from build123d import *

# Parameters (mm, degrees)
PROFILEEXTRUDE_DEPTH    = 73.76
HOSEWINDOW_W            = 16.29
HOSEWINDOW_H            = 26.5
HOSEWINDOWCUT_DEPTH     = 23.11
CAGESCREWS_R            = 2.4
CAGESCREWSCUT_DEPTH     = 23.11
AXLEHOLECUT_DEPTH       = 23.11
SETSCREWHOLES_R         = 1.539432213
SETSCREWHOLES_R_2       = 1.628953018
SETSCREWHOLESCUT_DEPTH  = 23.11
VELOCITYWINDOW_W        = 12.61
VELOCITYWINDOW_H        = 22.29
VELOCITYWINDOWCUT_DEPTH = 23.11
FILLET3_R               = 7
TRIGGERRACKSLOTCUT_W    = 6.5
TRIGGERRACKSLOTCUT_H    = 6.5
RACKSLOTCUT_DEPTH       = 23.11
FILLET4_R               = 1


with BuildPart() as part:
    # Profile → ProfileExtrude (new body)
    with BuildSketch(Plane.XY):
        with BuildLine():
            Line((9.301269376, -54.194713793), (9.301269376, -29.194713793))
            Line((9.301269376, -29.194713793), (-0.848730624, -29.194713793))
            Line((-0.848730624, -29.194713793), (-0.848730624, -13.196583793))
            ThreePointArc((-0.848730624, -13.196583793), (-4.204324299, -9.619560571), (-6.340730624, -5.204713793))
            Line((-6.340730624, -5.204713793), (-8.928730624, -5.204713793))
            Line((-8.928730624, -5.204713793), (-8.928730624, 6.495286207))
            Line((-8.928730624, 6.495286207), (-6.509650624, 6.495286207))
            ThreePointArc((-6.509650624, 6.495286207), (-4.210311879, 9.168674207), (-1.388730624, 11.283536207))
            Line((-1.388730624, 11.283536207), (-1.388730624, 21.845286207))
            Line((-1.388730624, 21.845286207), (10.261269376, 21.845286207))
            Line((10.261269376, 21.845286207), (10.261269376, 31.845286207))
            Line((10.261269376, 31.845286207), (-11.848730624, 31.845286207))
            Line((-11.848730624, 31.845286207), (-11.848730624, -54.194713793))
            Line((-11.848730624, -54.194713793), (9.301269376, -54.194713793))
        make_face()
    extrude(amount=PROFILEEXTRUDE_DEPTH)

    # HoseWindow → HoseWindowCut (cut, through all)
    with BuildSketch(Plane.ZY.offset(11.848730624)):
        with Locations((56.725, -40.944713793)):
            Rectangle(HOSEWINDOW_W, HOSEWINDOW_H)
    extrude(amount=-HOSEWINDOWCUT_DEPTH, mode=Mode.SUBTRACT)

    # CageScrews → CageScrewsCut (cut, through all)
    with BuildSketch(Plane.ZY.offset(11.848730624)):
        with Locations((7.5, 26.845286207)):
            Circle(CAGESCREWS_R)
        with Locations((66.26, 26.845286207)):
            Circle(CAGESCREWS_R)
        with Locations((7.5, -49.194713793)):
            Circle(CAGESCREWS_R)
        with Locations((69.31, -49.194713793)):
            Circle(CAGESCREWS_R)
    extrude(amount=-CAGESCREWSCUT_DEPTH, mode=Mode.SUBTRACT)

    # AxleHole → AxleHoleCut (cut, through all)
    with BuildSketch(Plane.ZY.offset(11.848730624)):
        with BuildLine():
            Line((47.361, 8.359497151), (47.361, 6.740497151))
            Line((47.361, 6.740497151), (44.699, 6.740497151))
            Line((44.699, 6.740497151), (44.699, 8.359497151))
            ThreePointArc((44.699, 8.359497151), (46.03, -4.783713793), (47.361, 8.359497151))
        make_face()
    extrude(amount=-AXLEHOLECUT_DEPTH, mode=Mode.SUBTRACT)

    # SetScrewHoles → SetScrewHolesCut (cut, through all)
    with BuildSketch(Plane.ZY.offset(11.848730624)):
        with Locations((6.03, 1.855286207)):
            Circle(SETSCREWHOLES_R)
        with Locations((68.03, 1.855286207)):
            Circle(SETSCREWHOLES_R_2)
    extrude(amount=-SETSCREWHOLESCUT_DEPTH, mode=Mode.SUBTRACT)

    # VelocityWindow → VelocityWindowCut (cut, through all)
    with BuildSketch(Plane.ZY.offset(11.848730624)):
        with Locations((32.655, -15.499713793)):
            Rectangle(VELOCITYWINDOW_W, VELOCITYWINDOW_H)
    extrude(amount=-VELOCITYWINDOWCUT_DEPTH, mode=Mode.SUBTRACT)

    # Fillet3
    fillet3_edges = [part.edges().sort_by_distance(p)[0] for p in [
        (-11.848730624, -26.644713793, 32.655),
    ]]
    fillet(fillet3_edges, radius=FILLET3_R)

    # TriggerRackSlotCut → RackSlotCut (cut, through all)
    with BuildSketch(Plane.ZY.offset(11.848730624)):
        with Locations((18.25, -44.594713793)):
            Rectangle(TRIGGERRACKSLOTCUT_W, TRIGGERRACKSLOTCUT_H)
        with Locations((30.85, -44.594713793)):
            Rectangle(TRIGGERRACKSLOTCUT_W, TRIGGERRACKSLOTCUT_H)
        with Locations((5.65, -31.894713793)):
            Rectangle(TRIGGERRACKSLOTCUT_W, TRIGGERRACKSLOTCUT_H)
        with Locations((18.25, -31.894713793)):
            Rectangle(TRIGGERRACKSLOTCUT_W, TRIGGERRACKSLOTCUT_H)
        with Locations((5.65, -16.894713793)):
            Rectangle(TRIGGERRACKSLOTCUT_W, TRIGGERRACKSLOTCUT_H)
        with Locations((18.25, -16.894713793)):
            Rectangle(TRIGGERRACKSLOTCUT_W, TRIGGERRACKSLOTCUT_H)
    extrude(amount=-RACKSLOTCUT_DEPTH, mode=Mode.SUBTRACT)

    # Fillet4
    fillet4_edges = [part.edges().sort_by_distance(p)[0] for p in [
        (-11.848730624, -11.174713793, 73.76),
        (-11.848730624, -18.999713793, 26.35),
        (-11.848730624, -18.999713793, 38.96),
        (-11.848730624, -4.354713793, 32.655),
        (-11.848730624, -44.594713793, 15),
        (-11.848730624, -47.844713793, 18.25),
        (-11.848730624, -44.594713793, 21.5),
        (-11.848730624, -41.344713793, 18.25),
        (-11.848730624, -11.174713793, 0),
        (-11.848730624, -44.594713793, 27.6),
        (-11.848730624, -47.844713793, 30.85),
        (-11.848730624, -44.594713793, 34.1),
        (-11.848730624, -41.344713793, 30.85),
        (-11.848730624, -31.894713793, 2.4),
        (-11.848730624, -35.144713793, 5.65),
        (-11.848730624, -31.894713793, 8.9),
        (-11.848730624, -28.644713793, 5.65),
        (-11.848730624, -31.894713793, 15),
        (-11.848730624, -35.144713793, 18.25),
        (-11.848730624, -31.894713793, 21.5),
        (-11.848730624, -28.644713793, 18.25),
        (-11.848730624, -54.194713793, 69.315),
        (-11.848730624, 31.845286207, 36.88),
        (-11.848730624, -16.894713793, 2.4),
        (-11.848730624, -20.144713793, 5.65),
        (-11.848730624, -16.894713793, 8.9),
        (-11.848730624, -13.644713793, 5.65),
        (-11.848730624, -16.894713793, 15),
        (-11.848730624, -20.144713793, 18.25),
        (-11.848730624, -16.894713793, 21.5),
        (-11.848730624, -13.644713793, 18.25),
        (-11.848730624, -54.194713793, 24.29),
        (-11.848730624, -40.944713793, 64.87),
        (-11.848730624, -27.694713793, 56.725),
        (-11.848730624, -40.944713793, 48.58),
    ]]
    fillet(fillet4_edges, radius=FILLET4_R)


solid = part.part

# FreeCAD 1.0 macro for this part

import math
import FreeCAD as App
import Part
import Sketcher

V = App.Vector


def edges_at(feature, points):
    """Names of the edges that pass closest to the given points."""
    edges = feature.Shape.Edges
    near = lambda p: min(range(len(edges)), key=lambda i: edges[i].distToShape(Part.Vertex(*p))[0])
    return sorted({f"Edge{near(p) + 1}" for p in points})


def add_polygon(sketch, points):
    """Adds a closed chain of lines whose ends are joined by coincident constraints."""
    first, n = sketch.GeometryCount, len(points)
    for a, b in zip(points, points[1:] + points[:1]):
        sketch.addGeometry(Part.LineSegment(App.Vector(*a, 0), App.Vector(*b, 0)), False)
    for i in range(n):
        sketch.addConstraint(Sketcher.Constraint("Coincident", first + i, 2, first + (i + 1) % n, 1))

doc = App.newDocument("Part")
params = doc.addObject("Spreadsheet::Sheet", "Params")
for row, (alias, value) in enumerate([
    ("sketch1_height", "25 mm"),
    ("sketch1_height2", "10 mm"),
    ("sketch1_height3", "11.7 mm"),
    ("sketch1_width", "10.15 mm"),
    ("sketch1_width2", "11.65 mm"),
    ("pad1_length", "73.76 mm"),
    ("sketch2_width", "26.5 mm"),
    ("sketch2_height", "16.29 mm"),
    ("sketch3_diameter", "4.8 mm"),
    ("sketch6_width", "22.29 mm"),
    ("sketch6_height", "12.61 mm"),
    ("fillet_radius", "7 mm"),
    ("sketch7_width", "6.5 mm"),
    ("fillet2_radius", "1 mm"),
], start=1):
    params.set(f"A{row}", alias)
    params.set(f"B{row}", "=" + value)
    params.setAlias(f"B{row}", alias)

body = doc.addObject("PartDesign::Body", "Body")

# Sketch on XY plane
sketch1 = doc.addObject("Sketcher::SketchObject", "Sketch")
body.addObject(sketch1)
sketch1.AttachmentSupport = (doc.XY_Plane, [""])
sketch1.MapMode = "FlatFace"
sketch1.addGeometry([
    Part.LineSegment(V(9.3, -54.2, 0), V(9.3, -29.2, 0)),  # 0
    Part.LineSegment(V(9.3, -29.2, 0), V(-0.8, -29.2, 0)),  # 1
    Part.LineSegment(V(-0.8, -29.2, 0), V(-0.8, -13.2, 0)),  # 2
    Part.ArcOfCircle(Part.Circle(V(9.2, -0.4, 0), V(0, 0, 1), 16.3), math.radians(-163), math.radians(-128)),  # 3
    Part.LineSegment(V(-6.3, -5.2, 0), V(-8.9, -5.2, 0)),  # 4
    Part.LineSegment(V(-8.9, -5.2, 0), V(-8.9, 6.5, 0)),  # 5
    Part.LineSegment(V(-8.9, 6.5, 0), V(-6.5, 6.5, 0)),  # 6
    Part.ArcOfCircle(Part.Circle(V(6.9, -2.7, 0), V(0, 0, 1), 16.3), math.radians(121), math.radians(146)),  # 7
    Part.LineSegment(V(-1.4, 11.3, 0), V(-1.4, 21.8, 0)),  # 8
    Part.LineSegment(V(-1.4, 21.8, 0), V(10.3, 21.8, 0)),  # 9
    Part.LineSegment(V(10.3, 21.8, 0), V(10.3, 31.8, 0)),  # 10
    Part.LineSegment(V(10.3, 31.8, 0), V(-11.8, 31.8, 0)),  # 11
    Part.LineSegment(V(-11.8, 31.8, 0), V(-11.8, -54.2, 0)),  # 12
    Part.LineSegment(V(-11.8, -54.2, 0), V(9.3, -54.2, 0)),  # 13
], False)
sketch1.addConstraint([
    Sketcher.Constraint("Coincident", 0, 2, 1, 1),
    Sketcher.Constraint("Coincident", 1, 2, 2, 1),
    Sketcher.Constraint("Coincident", 2, 2, 3, 2),
    Sketcher.Constraint("Coincident", 3, 1, 4, 1),
    Sketcher.Constraint("Coincident", 4, 2, 5, 1),
    Sketcher.Constraint("Coincident", 5, 2, 6, 1),
    Sketcher.Constraint("Coincident", 6, 2, 7, 2),
    Sketcher.Constraint("Coincident", 7, 1, 8, 1),
    Sketcher.Constraint("Coincident", 8, 2, 9, 1),
    Sketcher.Constraint("Coincident", 9, 2, 10, 1),
    Sketcher.Constraint("Coincident", 10, 2, 11, 1),
    Sketcher.Constraint("Coincident", 11, 2, 12, 1),
    Sketcher.Constraint("Coincident", 12, 2, 13, 1),
    Sketcher.Constraint("Coincident", 13, 2, 0, 1),
    Sketcher.Constraint("Vertical", 0),
    Sketcher.Constraint("Horizontal", 1),
    Sketcher.Constraint("Vertical", 2),
    Sketcher.Constraint("Horizontal", 4),
    Sketcher.Constraint("Vertical", 5),
    Sketcher.Constraint("Horizontal", 6),
    Sketcher.Constraint("Vertical", 8),
    Sketcher.Constraint("Horizontal", 9),
    Sketcher.Constraint("Vertical", 10),
    Sketcher.Constraint("Horizontal", 11),
    Sketcher.Constraint("Vertical", 12),
    Sketcher.Constraint("Horizontal", 13),
    Sketcher.Constraint("Equal", 3, 7),
    Sketcher.Constraint("DistanceY", 0, 1, 0, 2, 25.0),
    Sketcher.Constraint("DistanceY", 10, 1, 10, 2, 10.0),
    Sketcher.Constraint("DistanceY", 5, 1, 5, 2, 11.7),
    Sketcher.Constraint("Radius", 3, 16.261),
    Sketcher.Constraint("DistanceX", 12, 2, 1, 2, 11.0),
    Sketcher.Constraint("DistanceX", 1, 2, 1, 1, 10.15),
    Sketcher.Constraint("DistanceX", 9, 1, 9, 2, 11.65),
    Sketcher.Constraint("DistanceX", 11, 2, 11, 1, 22.11),
    Sketcher.Constraint("DistanceY", 12, 2, 12, 1, 86.04),
    Sketcher.Constraint("DistanceX", 4, 2, 4, 1, 2.588),
    Sketcher.Constraint("DistanceY", 1, 2, 3, 1, 23.99),
    Sketcher.Constraint("DistanceX", 4, 2, 2, 2, 8.08),
    Sketcher.Constraint("DistanceX", 6, 1, 6, 2, 2.41908),
    Sketcher.Constraint("DistanceY", 2, 1, 2, 2, 15.99813),
    Sketcher.Constraint("DistanceY", 8, 1, 8, 2, 10.56175),
    Sketcher.Constraint("DistanceX", -1, 1, 3, 3, 9.197308),
    Sketcher.Constraint("DistanceY", 3, 3, -1, 1, 0.409981),
])
sketch1.setExpression("Constraints[27]", "Params.sketch1_height")
sketch1.setExpression("Constraints[28]", "Params.sketch1_height2")
sketch1.setExpression("Constraints[29]", "Params.sketch1_height3")
sketch1.setExpression("Constraints[32]", "Params.sketch1_width")
sketch1.setExpression("Constraints[33]", "Params.sketch1_width2")
pad1 = doc.addObject("PartDesign::Pad", "Pad")
body.addObject(pad1)
pad1.Profile = sketch1
pad1.setExpression("Length", "Params.pad1_length")

# Sketch on YZ plane
sketch2 = doc.addObject("Sketcher::SketchObject", "Sketch001")
body.addObject(sketch2)
sketch2.AttachmentSupport = (doc.YZ_Plane, [""])
sketch2.MapMode = "FlatFace"
sketch2.AttachmentOffset = App.Placement(V(0, 0, -11.848731), App.Rotation())
add_polygon(sketch2, [(-28, 49), (-54, 49), (-54, 65), (-28, 65)])  # lines 0-3
sketch2.addConstraint([
    Sketcher.Constraint("Horizontal", 0),
    Sketcher.Constraint("Vertical", 1),
    Sketcher.Constraint("Horizontal", 2),
    Sketcher.Constraint("Vertical", 3),
    Sketcher.Constraint("DistanceX", 0, 2, 0, 1, 26.5),
    Sketcher.Constraint("DistanceY", 1, 1, 1, 2, 16.29),
    Sketcher.Constraint("DistanceY", -1, 1, 0, 2, 48.58),
    Sketcher.Constraint("DistanceX", 0, 2, -1, 1, 54.194714),
])
sketch2.setExpression("Constraints[8]", "Params.sketch2_width")
sketch2.setExpression("Constraints[9]", "Params.sketch2_height")
pocket1 = doc.addObject("PartDesign::Pocket", "Pocket")
body.addObject(pocket1)
pocket1.Profile = sketch2
pocket1.Type = "ThroughAll"
pocket1.Reversed = True

# Sketch on YZ plane
sketch3 = doc.addObject("Sketcher::SketchObject", "Sketch002")
body.addObject(sketch3)
sketch3.AttachmentSupport = (doc.YZ_Plane, [""])
sketch3.MapMode = "FlatFace"
sketch3.AttachmentOffset = App.Placement(V(0, 0, -11.848731), App.Rotation())
sketch3.addGeometry([
    Part.Circle(V(26.8, 7.5, 0), V(0, 0, 1), 2.4),
    Part.Circle(V(26.8, 66.3, 0), V(0, 0, 1), 2.4),
    Part.Circle(V(-49.2, 7.5, 0), V(0, 0, 1), 2.4),
    Part.Circle(V(-49.2, 69.3, 0), V(0, 0, 1), 2.4),
], False)
sketch3.addConstraint([
    Sketcher.Constraint("Equal", 0, 1),
    Sketcher.Constraint("Equal", 1, 2),
    Sketcher.Constraint("Equal", 2, 3),
    Sketcher.Constraint("Horizontal", 0, 3, 2, 3),
    Sketcher.Constraint("Vertical", 0, 3, 1, 3),
    Sketcher.Constraint("Vertical", 2, 3, 3, 3),
    Sketcher.Constraint("Diameter", 0, 4.8),
    Sketcher.Constraint("DistanceY", -1, 1, 0, 3, 7.5),
    Sketcher.Constraint("DistanceY", -1, 1, 1, 3, 66.26),
    Sketcher.Constraint("DistanceY", -1, 1, 3, 3, 69.31),
    Sketcher.Constraint("DistanceX", 2, 3, 0, 3, 76.04),
    Sketcher.Constraint("DistanceX", -1, 1, 0, 3, 26.845286),
])
sketch3.setExpression("Constraints[6]", "Params.sketch3_diameter")
pocket2 = doc.addObject("PartDesign::Pocket", "Pocket001")
body.addObject(pocket2)
pocket2.Profile = sketch3
pocket2.Type = "ThroughAll"
pocket2.Reversed = True

# Sketch on YZ plane
sketch4 = doc.addObject("Sketcher::SketchObject", "Sketch003")
body.addObject(sketch4)
sketch4.AttachmentSupport = (doc.YZ_Plane, [""])
sketch4.MapMode = "FlatFace"
sketch4.AttachmentOffset = App.Placement(V(0, 0, -11.848731), App.Rotation())
sketch4.addGeometry([
    Part.LineSegment(V(8.4, 47.4, 0), V(6.7, 47.4, 0)),
    Part.LineSegment(V(6.7, 47.4, 0), V(6.7, 44.7, 0)),
    Part.LineSegment(V(6.7, 44.7, 0), V(8.4, 44.7, 0)),
    Part.ArcOfCircle(Part.Circle(V(1.9, 46, 0), V(0, 0, 1), 6.6), math.radians(12), math.radians(348)),
], False)
sketch4.addConstraint([
    Sketcher.Constraint("Coincident", 0, 2, 1, 1),
    Sketcher.Constraint("Coincident", 1, 2, 2, 1),
    Sketcher.Constraint("Coincident", 2, 2, 3, 2),
    Sketcher.Constraint("Coincident", 3, 1, 0, 1),
    Sketcher.Constraint("Horizontal", 0),
    Sketcher.Constraint("Vertical", 1),
    Sketcher.Constraint("Horizontal", 2),
    Sketcher.Constraint("Vertical", 2, 2, 3, 1),
    Sketcher.Constraint("Radius", 3, 6.639),
    Sketcher.Constraint("DistanceX", 0, 2, 0, 1, 1.619),
    Sketcher.Constraint("DistanceY", 1, 2, 1, 1, 2.662),
    Sketcher.Constraint("DistanceY", -1, 1, 3, 3, 46.03),
    Sketcher.Constraint("DistanceX", -1, 1, 3, 3, 1.855286),
])
pocket3 = doc.addObject("PartDesign::Pocket", "Pocket002")
body.addObject(pocket3)
pocket3.Profile = sketch4
pocket3.Type = "ThroughAll"
pocket3.Reversed = True

# Sketch on YZ plane
sketch5 = doc.addObject("Sketcher::SketchObject", "Sketch004")
body.addObject(sketch5)
sketch5.AttachmentSupport = (doc.YZ_Plane, [""])
sketch5.MapMode = "FlatFace"
sketch5.AttachmentOffset = App.Placement(V(0, 0, -11.848731), App.Rotation())
sketch5.addGeometry([
    Part.Circle(V(1.9, 6, 0), V(0, 0, 1), 1.5),
    Part.Circle(V(1.9, 68, 0), V(0, 0, 1), 1.6),
], False)
sketch5.addConstraint([
    Sketcher.Constraint("Vertical", 0, 3, 1, 3),
    Sketcher.Constraint("DistanceY", 0, 3, 1, 3, 62.0),
    Sketcher.Constraint("DistanceY", -1, 1, 0, 3, 6.03),
    Sketcher.Constraint("Diameter", 0, 3.078864),
    Sketcher.Constraint("Diameter", 1, 3.257906),
    Sketcher.Constraint("DistanceX", -1, 1, 0, 3, 1.855286),
])
pocket4 = doc.addObject("PartDesign::Pocket", "Pocket003")
body.addObject(pocket4)
pocket4.Profile = sketch5
pocket4.Type = "ThroughAll"
pocket4.Reversed = True

# Sketch on YZ plane
sketch6 = doc.addObject("Sketcher::SketchObject", "Sketch005")
body.addObject(sketch6)
sketch6.AttachmentSupport = (doc.YZ_Plane, [""])
sketch6.MapMode = "FlatFace"
sketch6.AttachmentOffset = App.Placement(V(0, 0, -11.848731), App.Rotation())
add_polygon(sketch6, [(-4, 26), (-27, 26), (-27, 39), (-4, 39)])  # lines 0-3
sketch6.addConstraint([
    Sketcher.Constraint("Horizontal", 0),
    Sketcher.Constraint("Vertical", 1),
    Sketcher.Constraint("Horizontal", 2),
    Sketcher.Constraint("Vertical", 3),
    Sketcher.Constraint("DistanceX", 0, 2, 0, 1, 22.29),
    Sketcher.Constraint("DistanceY", 1, 1, 1, 2, 12.61),
    Sketcher.Constraint("DistanceY", -1, 1, 0, 2, 26.35),
    Sketcher.Constraint("DistanceX", 0, 2, -1, 1, 26.644714),
])
sketch6.setExpression("Constraints[8]", "Params.sketch6_width")
sketch6.setExpression("Constraints[9]", "Params.sketch6_height")
pocket5 = doc.addObject("PartDesign::Pocket", "Pocket004")
body.addObject(pocket5)
pocket5.Profile = sketch6
pocket5.Type = "ThroughAll"
pocket5.Reversed = True
doc.recompute()

fillet = doc.addObject("PartDesign::Fillet", "Fillet")
body.addObject(fillet)
fillet.Base = (pocket5, edges_at(pocket5, [(-11.849, -26.645, 32.655)]))
fillet.setExpression("Radius", "Params.fillet_radius")

# Sketch on YZ plane
sketch7 = doc.addObject("Sketcher::SketchObject", "Sketch006")
body.addObject(sketch7)
sketch7.AttachmentSupport = (doc.YZ_Plane, [""])
sketch7.MapMode = "FlatFace"
sketch7.AttachmentOffset = App.Placement(V(0, 0, -11.848731), App.Rotation())
add_polygon(sketch7, [(-41, 15), (-48, 15), (-48, 22), (-41, 22)])  # lines 0-3
add_polygon(sketch7, [(-41, 28), (-48, 28), (-48, 34), (-41, 34)])  # lines 4-7
add_polygon(sketch7, [(-29, 2), (-35, 2), (-35, 9), (-29, 9)])  # lines 8-11
add_polygon(sketch7, [(-29, 15), (-35, 15), (-35, 22), (-29, 22)])  # lines 12-15
add_polygon(sketch7, [(-14, 2), (-20, 2), (-20, 9), (-14, 9)])  # lines 16-19
add_polygon(sketch7, [(-14, 15), (-20, 15), (-20, 22), (-14, 22)])  # lines 20-23
sketch7.addConstraint([
    Sketcher.Constraint("Horizontal", 0),
    Sketcher.Constraint("Vertical", 1),
    Sketcher.Constraint("Horizontal", 2),
    Sketcher.Constraint("Vertical", 3),
    Sketcher.Constraint("Horizontal", 4),
    Sketcher.Constraint("Vertical", 5),
    Sketcher.Constraint("Horizontal", 6),
    Sketcher.Constraint("Vertical", 7),
    Sketcher.Constraint("Horizontal", 8),
    Sketcher.Constraint("Vertical", 9),
    Sketcher.Constraint("Horizontal", 10),
    Sketcher.Constraint("Vertical", 11),
    Sketcher.Constraint("Horizontal", 12),
    Sketcher.Constraint("Vertical", 13),
    Sketcher.Constraint("Horizontal", 14),
    Sketcher.Constraint("Vertical", 15),
    Sketcher.Constraint("Horizontal", 16),
    Sketcher.Constraint("Vertical", 17),
    Sketcher.Constraint("Horizontal", 18),
    Sketcher.Constraint("Vertical", 19),
    Sketcher.Constraint("Horizontal", 20),
    Sketcher.Constraint("Vertical", 21),
    Sketcher.Constraint("Horizontal", 22),
    Sketcher.Constraint("Vertical", 23),
    Sketcher.Constraint("Horizontal", 3, 2, 12, 2),
    Sketcher.Constraint("Horizontal", 2, 2, 13, 2),
    Sketcher.Constraint("Horizontal", 11, 2, 16, 2),
    Sketcher.Constraint("Horizontal", 10, 2, 17, 2),
    Sketcher.Constraint("Horizontal", 15, 2, 20, 2),
    Sketcher.Constraint("Horizontal", 14, 2, 21, 2),
    Sketcher.Constraint("Vertical", 1, 2, 4, 2),
    Sketcher.Constraint("Vertical", 3, 2, 6, 2),
    Sketcher.Constraint("Vertical", 9, 2, 12, 2),
    Sketcher.Constraint("Vertical", 11, 2, 14, 2),
    Sketcher.Constraint("Vertical", 17, 2, 20, 2),
    Sketcher.Constraint("Vertical", 19, 2, 22, 2),
    Sketcher.Constraint("Equal", 6, 8),
    Sketcher.Constraint("Equal", 14, 16),
    Sketcher.Constraint("Equal", 22, 1),
    Sketcher.Constraint("Equal", 3, 5),
    Sketcher.Constraint("Equal", 7, 9),
    Sketcher.Constraint("DistanceX", 0, 2, 0, 1, 6.5),
    Sketcher.Constraint("DistanceY", -1, 1, 0, 2, 15.0),
    Sketcher.Constraint("DistanceX", 8, 2, 16, 2, 15.0),
    Sketcher.Constraint("DistanceY", -1, 1, 4, 2, 27.6),
    Sketcher.Constraint("DistanceY", -1, 1, 8, 2, 2.4),
    Sketcher.Constraint("DistanceX", 3, 2, 8, 2, 6.2),
    Sketcher.Constraint("DistanceX", 0, 2, -1, 1, 47.844714),
])
sketch7.setExpression("Constraints[65]", "Params.sketch7_width")
pocket6 = doc.addObject("PartDesign::Pocket", "Pocket005")
body.addObject(pocket6)
pocket6.Profile = sketch7
pocket6.Type = "ThroughAll"
pocket6.Reversed = True
doc.recompute()

fillet2 = doc.addObject("PartDesign::Fillet", "Fillet001")
body.addObject(fillet2)
fillet2.Base = (pocket6, edges_at(pocket6, [
    (-11.849, -11.175, 73.76),
    (-11.849, -19, 26.35),
    (-11.849, -19, 38.96),
    (-11.849, -4.355, 32.655),
    (-11.849, -44.595, 15),
    (-11.849, -47.845, 18.25),
    (-11.849, -44.595, 21.5),
    (-11.849, -41.345, 18.25),
    (-11.849, -11.175, 0),
    (-11.849, -44.595, 27.6),
    (-11.849, -47.845, 30.85),
    (-11.849, -44.595, 34.1),
    (-11.849, -41.345, 30.85),
    (-11.849, -31.895, 2.4),
    (-11.849, -35.145, 5.65),
    (-11.849, -31.895, 8.9),
    (-11.849, -28.645, 5.65),
    (-11.849, -31.895, 15),
    (-11.849, -35.145, 18.25),
    (-11.849, -31.895, 21.5),
    (-11.849, -28.645, 18.25),
    (-11.849, -54.195, 69.315),
    (-11.849, 31.845, 36.88),
    (-11.849, -16.895, 2.4),
    (-11.849, -20.145, 5.65),
    (-11.849, -16.895, 8.9),
    (-11.849, -13.645, 5.65),
    (-11.849, -16.895, 15),
    (-11.849, -20.145, 18.25),
    (-11.849, -16.895, 21.5),
    (-11.849, -13.645, 18.25),
    (-11.849, -54.195, 24.29),
    (-11.849, -40.945, 64.87),
    (-11.849, -27.695, 56.725),
    (-11.849, -40.945, 48.58),
]))
fillet2.setExpression("Radius", "Params.fillet2_radius")

doc.recompute()
